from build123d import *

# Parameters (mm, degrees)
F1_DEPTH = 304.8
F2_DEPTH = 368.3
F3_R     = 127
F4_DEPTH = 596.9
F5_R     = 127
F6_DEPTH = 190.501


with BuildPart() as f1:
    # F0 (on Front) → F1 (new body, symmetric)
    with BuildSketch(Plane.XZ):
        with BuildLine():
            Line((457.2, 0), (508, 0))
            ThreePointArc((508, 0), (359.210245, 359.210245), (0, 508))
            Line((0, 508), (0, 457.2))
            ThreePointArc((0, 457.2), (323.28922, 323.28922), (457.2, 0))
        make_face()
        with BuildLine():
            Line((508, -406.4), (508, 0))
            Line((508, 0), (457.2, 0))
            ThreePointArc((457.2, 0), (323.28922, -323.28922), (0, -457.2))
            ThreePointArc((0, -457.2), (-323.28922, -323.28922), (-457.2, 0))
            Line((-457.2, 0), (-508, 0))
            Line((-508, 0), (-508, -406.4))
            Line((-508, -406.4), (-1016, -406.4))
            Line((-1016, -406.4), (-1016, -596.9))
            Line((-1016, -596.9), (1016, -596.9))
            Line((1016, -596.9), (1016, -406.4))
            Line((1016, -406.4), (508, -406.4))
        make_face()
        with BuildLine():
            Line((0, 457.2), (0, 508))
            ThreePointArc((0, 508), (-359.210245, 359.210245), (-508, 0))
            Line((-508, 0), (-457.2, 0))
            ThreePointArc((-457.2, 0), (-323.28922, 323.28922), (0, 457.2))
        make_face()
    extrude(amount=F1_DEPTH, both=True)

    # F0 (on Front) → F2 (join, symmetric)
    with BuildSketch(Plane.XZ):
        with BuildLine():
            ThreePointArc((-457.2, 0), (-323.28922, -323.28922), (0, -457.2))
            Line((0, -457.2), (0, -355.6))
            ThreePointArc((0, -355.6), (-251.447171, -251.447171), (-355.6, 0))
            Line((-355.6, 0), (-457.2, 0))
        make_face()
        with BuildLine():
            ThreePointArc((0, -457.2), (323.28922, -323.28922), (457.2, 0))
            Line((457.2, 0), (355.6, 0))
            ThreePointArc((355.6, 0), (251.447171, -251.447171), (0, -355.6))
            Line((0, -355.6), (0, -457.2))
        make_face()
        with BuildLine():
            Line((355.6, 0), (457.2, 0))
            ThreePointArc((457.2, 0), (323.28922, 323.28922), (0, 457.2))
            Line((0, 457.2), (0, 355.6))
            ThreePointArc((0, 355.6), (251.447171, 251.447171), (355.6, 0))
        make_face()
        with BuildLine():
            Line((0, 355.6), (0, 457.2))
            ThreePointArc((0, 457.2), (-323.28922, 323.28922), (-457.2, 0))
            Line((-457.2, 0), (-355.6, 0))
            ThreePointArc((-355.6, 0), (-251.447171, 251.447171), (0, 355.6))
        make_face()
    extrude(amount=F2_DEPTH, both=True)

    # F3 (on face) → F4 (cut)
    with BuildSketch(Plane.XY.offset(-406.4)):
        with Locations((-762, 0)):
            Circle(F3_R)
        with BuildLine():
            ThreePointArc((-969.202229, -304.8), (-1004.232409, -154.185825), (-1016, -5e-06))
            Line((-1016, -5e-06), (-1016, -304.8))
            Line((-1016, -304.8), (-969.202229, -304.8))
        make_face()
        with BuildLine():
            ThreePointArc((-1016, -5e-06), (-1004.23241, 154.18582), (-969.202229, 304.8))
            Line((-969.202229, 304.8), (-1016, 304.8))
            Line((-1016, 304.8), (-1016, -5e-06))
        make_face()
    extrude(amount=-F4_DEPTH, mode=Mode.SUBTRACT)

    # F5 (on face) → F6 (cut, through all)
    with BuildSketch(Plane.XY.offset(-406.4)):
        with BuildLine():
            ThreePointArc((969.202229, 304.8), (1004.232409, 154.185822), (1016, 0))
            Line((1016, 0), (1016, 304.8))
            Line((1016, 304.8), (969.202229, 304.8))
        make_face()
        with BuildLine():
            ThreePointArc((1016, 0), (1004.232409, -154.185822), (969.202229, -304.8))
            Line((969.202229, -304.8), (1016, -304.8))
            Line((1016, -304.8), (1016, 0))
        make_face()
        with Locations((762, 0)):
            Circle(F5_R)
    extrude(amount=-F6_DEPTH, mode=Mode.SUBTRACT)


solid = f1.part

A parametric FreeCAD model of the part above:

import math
import FreeCAD as App
import Part
import Sketcher
from FreeCAD import Vector
Q = App.Units.Quantity

doc = App.newDocument("Part")
body = doc.addObject("PartDesign::Body", "Body")

sketch1 = body.newObject("Sketcher::SketchObject", "Sketch")
sketch1.AttachmentSupport = (doc.getObject("XZ_Plane"), [""])
sketch1.MapMode = "FlatFace"
sketch1.addGeometry([
    Part.ArcOfCircle(Part.Circle(Vector(0, 0, 0), Vector(0, 0, 1), 508), math.radians(0), math.radians(90)),
    Part.ArcOfCircle(Part.Circle(Vector(0, 0, 0), Vector(0, 0, 1), 508), math.radians(90), math.radians(180)),
    Part.LineSegment(Vector(-508, 0, 0), Vector(-508, -406, 0)),
    Part.LineSegment(Vector(-508, -406, 0), Vector(-1016, -406, 0)),
    Part.LineSegment(Vector(-1016, -406, 0), Vector(-1016, -597, 0)),
    Part.LineSegment(Vector(-1016, -597, 0), Vector(1016, -597, 0)),
    Part.LineSegment(Vector(1016, -597, 0), Vector(1016, -406, 0)),
    Part.LineSegment(Vector(1016, -406, 0), Vector(508, -406, 0)),
    Part.LineSegment(Vector(508, -406, 0), Vector(508, 0, 0)),
    Part.ArcOfCircle(Part.Circle(Vector(0, 0, 0), Vector(0, 0, 1), 457), math.radians(0), math.radians(90)),
    Part.ArcOfCircle(Part.Circle(Vector(0, 0, 0), Vector(0, 0, 1), 457), math.radians(-90), math.radians(0)),
    Part.ArcOfCircle(Part.Circle(Vector(0, 0, 0), Vector(0, 0, 1), 457), math.radians(-180), math.radians(-90)),
    Part.ArcOfCircle(Part.Circle(Vector(0, 0, 0), Vector(0, 0, 1), 457), math.radians(90), math.radians(180)),
], False)
sketch1.addConstraint([
    Sketcher.Constraint("Coincident", 0, 2, 1, 1),
    Sketcher.Constraint("Tangent", 1, 2, 2, 1),
    Sketcher.Constraint("Coincident", 2, 2, 3, 1),
    Sketcher.Constraint("Coincident", 3, 2, 4, 1),
    Sketcher.Constraint("Coincident", 4, 2, 5, 1),
    Sketcher.Constraint("Coincident", 5, 2, 6, 1),
    Sketcher.Constraint("Coincident", 6, 2, 7, 1),
    Sketcher.Constraint("Coincident", 7, 2, 8, 1),
    Sketcher.Constraint("Tangent", 8, 2, 0, 1),
    Sketcher.Constraint("Tangent", 9, 1, 10, 2),
    Sketcher.Constraint("Tangent", 10, 1, 11, 2),
    Sketcher.Constraint("Coincident", 11, 1, 12, 2),
    Sketcher.Constraint("Coincident", 12, 1, 9, 2),
    Sketcher.Constraint("Vertical", 2),
    Sketcher.Constraint("Horizontal", 3),
    Sketcher.Constraint("Vertical", 4),
    Sketcher.Constraint("Horizontal", 5),
    Sketcher.Constraint("Vertical", 6),
    Sketcher.Constraint("Horizontal", 7),
    Sketcher.Constraint("Vertical", 8),
    Sketcher.Constraint("Coincident", 0, 3, -1, 1),
    Sketcher.Constraint("Coincident", 1, 3, -1, 1),
    Sketcher.Constraint("Coincident", 9, 3, -1, 1),
    Sketcher.Constraint("Coincident", 11, 3, -1, 1),
    Sketcher.Constraint("Equal", 11, 12),
    Sketcher.Constraint("Symmetric", 3, 2, 6, 2, -2),
    Sketcher.Constraint("PointOnObject", 0, 2, -2),
    Sketcher.Constraint("PointOnObject", 9, 1, -1),
    Sketcher.Constraint("PointOnObject", 10, 1, -2),
    Sketcher.Constraint("PointOnObject", 11, 1, -1),
    Sketcher.Constraint("PointOnObject", 12, 1, -2),
    Sketcher.Constraint("Radius", 0, Q("20 in")),
    Sketcher.Constraint("Radius", 9, Q("18 in")),
    Sketcher.Constraint("DistanceX", 3, 2, 3, 1, Q("20 in")),
    Sketcher.Constraint("DistanceY", 2, 2, 2, 1, Q("16 in")),
    Sketcher.Constraint("DistanceY", 4, 2, 4, 1, Q("7.5 in")),
])
pad1 = body.newObject("PartDesign::Pad", "Pad")
pad1.Profile = sketch1
pad1.Length = Q("24 in")
pad1.Midplane = True

sketch2 = body.newObject("Sketcher::SketchObject", "Sketch001")
sketch2.AttachmentSupport = (doc.getObject("XZ_Plane"), [""])
sketch2.MapMode = "FlatFace"
sketch2.addGeometry([
    Part.ArcOfCircle(Part.Circle(Vector(0, 0, 0), Vector(0, 0, 1), 457), math.radians(-180), math.radians(-90)),
    Part.ArcOfCircle(Part.Circle(Vector(0, 0, 0), Vector(0, 0, 1), 457), math.radians(-90), math.radians(0)),
    Part.ArcOfCircle(Part.Circle(Vector(0, 0, 0), Vector(0, 0, 1), 457), math.radians(0), math.radians(90)),
    Part.ArcOfCircle(Part.Circle(Vector(0, 0, 0), Vector(0, 0, 1), 457), math.radians(90), math.radians(180)),
    Part.ArcOfCircle(Part.Circle(Vector(0, 0, 0), Vector(0, 0, 1), 356), math.radians(0), math.radians(90)),
    Part.ArcOfCircle(Part.Circle(Vector(0, 0, 0), Vector(0, 0, 1), 356), math.radians(-90), math.radians(0)),
    Part.ArcOfCircle(Part.Circle(Vector(0, 0, 0), Vector(0, 0, 1), 356), math.radians(-180), math.radians(-90)),
    Part.ArcOfCircle(Part.Circle(Vector(0, 0, 0), Vector(0, 0, 1), 356), math.radians(90), math.radians(180)),
], False)
sketch2.addConstraint([
    Sketcher.Constraint("Tangent", 0, 2, 1, 1),
    Sketcher.Constraint("Tangent", 1, 2, 2, 1),
    Sketcher.Constraint("Coincident", 2, 2, 3, 1),
    Sketcher.Constraint("Coincident", 3, 2, 0, 1),
    Sketcher.Constraint("Tangent", 4, 1, 5, 2),
    Sketcher.Constraint("Tangent", 5, 1, 6, 2),
    Sketcher.Constraint("Tangent", 6, 1, 7, 2),
    Sketcher.Constraint("Tangent", 7, 1, 4, 2),
    Sketcher.Constraint("Coincident", 0, 3, -1, 1),
    Sketcher.Constraint("Coincident", 2, 3, -1, 1),
    Sketcher.Constraint("Coincident", 4, 3, -1, 1),
    Sketcher.Constraint("Equal", 2, 3),
    Sketcher.Constraint("Equal", 4, 5),
    Sketcher.Constraint("PointOnObject", 0, 2, -2),
    Sketcher.Constraint("PointOnObject", 1, 2, -1),
    Sketcher.Constraint("PointOnObject", 2, 2, -2),
    Sketcher.Constraint("PointOnObject", 3, 2, -1),
    Sketcher.Constraint("PointOnObject", 4, 1, -1),
    Sketcher.Constraint("PointOnObject", 5, 1, -2),
    Sketcher.Constraint("PointOnObject", 6, 1, -1),
    Sketcher.Constraint("PointOnObject", 7, 1, -2),
    Sketcher.Constraint("Radius", 0, Q("18 in")),
    Sketcher.Constraint("Radius", 4, Q("14.0000001 in")),
])
pad2 = body.newObject("PartDesign::Pad", "Pad001")
pad2.Profile = sketch2
pad2.Length = Q("29 in")
pad2.Midplane = True

sketch3 = body.newObject("Sketcher::SketchObject", "Sketch002")
sketch3.AttachmentSupport = (doc.getObject("XY_Plane"), [""])
sketch3.MapMode = "FlatFace"
sketch3.AttachmentOffset = App.Placement(Vector(0, 0, -16 * 25.4), App.Rotation())
sketch3.addGeometry([
    Part.Circle(Vector(-762, 0, 0), Vector(0, 0, 1), 127),
    Part.ArcOfCircle(Part.Circle(Vector(0, 0, 0), Vector(0, 0, 1), 1016), math.radians(-180), math.radians(-162.54)),
    Part.LineSegment(Vector(-1016, 0, 0), Vector(-1016, -305, 0)),
    Part.LineSegment(Vector(-1016, -305, 0), Vector(-969, -305, 0)),
    Part.ArcOfCircle(Part.Circle(Vector(0, 0, 0), Vector(0, 0, 1), 1016), math.radians(162.54), math.radians(180)),
    Part.LineSegment(Vector(-969, 305, 0), Vector(-1016, 305, 0)),
    Part.LineSegment(Vector(-1016, 305, 0), Vector(-1016, 0, 0)),
], False)
sketch3.addConstraint([
    Sketcher.Constraint("Tangent", 1, 1, 2, 1),
    Sketcher.Constraint("Coincident", 2, 2, 3, 1),
    Sketcher.Constraint("Coincident", 3, 2, 1, 2),
    Sketcher.Constraint("Coincident", 4, 1, 5, 1),
    Sketcher.Constraint("Coincident", 5, 2, 6, 1),
    Sketcher.Constraint("Tangent", 6, 2, 4, 2),
    Sketcher.Constraint("Vertical", 2),
    Sketcher.Constraint("Horizontal", 3),
    Sketcher.Constraint("Horizontal", 5),
    Sketcher.Constraint("Vertical", 6),
    Sketcher.Constraint("Coincident", 4, 3, -1, 1),
    Sketcher.Constraint("Symmetric", 2, 2, 5, 2, -1),
    Sketcher.Constraint("PointOnObject", 0, 3, -1),
    Sketcher.Constraint("PointOnObject", 1, 3, -1),
    Sketcher.Constraint("Equal", 3, 5),
    Sketcher.Constraint("Diameter", 0, Q("10 in")),
    Sketcher.Constraint("Radius", 4, Q("40 in")),
    Sketcher.Constraint("DistanceY", 2, 2, 2, 1, Q("11.9999998 in")),
    Sketcher.Constraint("DistanceX", 0, 3, -1, 1, Q("30 in")),
])
pocket1 = body.newObject("PartDesign::Pocket", "Pocket")
pocket1.Profile = sketch3
pocket1.Length = Q("23.5 in")

sketch4 = body.newObject("Sketcher::SketchObject", "Sketch003")
sketch4.AttachmentSupport = (doc.getObject("XY_Plane"), [""])
sketch4.MapMode = "FlatFace"
sketch4.AttachmentOffset = App.Placement(Vector(0, 0, -16 * 25.4), App.Rotation())
sketch4.addGeometry([
    Part.ArcOfCircle(Part.Circle(Vector(-0.000057, -0.000008, 0), Vector(0, 0, 1), 1016.000057), math.radians(0), math.radians(17.457603)),
    Part.LineSegment(Vector(1016, 0, 0), Vector(1016, 304.8, 0)),
    Part.LineSegment(Vector(1016, 304.8, 0), Vector(969.202229, 304.8, 0)),
    Part.ArcOfCircle(Part.Circle(Vector(-0.000057, 0.000008, 0), Vector(0, 0, 1), 1016.000057), math.radians(-17.457603), math.radians(0)),
    Part.LineSegment(Vector(969.202229, -304.8, 0), Vector(1016, -304.8, 0)),
    Part.LineSegment(Vector(1016, -304.8, 0), Vector(1016, 0, 0)),
    Part.Circle(Vector(762, 0, 0), Vector(0, 0, 1), 127),
], False)
sketch4.addConstraint([
    Sketcher.Constraint("Coincident", 0, 1, 1, 1),
    Sketcher.Constraint("Coincident", 1, 2, 2, 1),
    Sketcher.Constraint("Coincident", 2, 2, 0, 2),
    Sketcher.Constraint("Coincident", 3, 1, 4, 1),
    Sketcher.Constraint("Coincident", 4, 2, 5, 1),
    Sketcher.Constraint("Coincident", 5, 2, 3, 2),
    Sketcher.Constraint("Vertical", 1),
    Sketcher.Constraint("Horizontal", 2),
    Sketcher.Constraint("Horizontal", 4),
    Sketcher.Constraint("Vertical", 5),
    Sketcher.Constraint("PointOnObject", 6, 3, -1),
    Sketcher.Constraint("PointOnObject", 5, 2, -1),
    Sketcher.Constraint("Diameter", 6, Q("10 in")),
    Sketcher.Constraint("DistanceY", 1, 1, 1, 2, Q("12 in")),
    Sketcher.Constraint("DistanceY", 5, 1, 5, 2, Q("12 in")),
    Sketcher.Constraint("DistanceX", -1, 1, 6, 3, Q("30 in")),
    Sketcher.Constraint("DistanceX", -1, 1, 0, 1, Q("40 in")),
    Sketcher.Constraint("DistanceY", -1, 1, 1, 2, Q("12 in")),
    Sketcher.Constraint("DistanceX", -1, 1, 4, 2, Q("40 in")),
    Sketcher.Constraint("Radius", 0, 1016.000057),
    Sketcher.Constraint("Radius", 3, 1016.000057),
    Sketcher.Constraint("DistanceX", 2, 2, 2, 1, 46.797771),
    Sketcher.Constraint("DistanceX", 4, 1, 4, 2, 46.797771),
])
pocket2 = body.newObject("PartDesign::Pocket", "Pocket001")
pocket2.Profile = sketch4
pocket2.Type = "ThroughAll"

doc.recompute()
